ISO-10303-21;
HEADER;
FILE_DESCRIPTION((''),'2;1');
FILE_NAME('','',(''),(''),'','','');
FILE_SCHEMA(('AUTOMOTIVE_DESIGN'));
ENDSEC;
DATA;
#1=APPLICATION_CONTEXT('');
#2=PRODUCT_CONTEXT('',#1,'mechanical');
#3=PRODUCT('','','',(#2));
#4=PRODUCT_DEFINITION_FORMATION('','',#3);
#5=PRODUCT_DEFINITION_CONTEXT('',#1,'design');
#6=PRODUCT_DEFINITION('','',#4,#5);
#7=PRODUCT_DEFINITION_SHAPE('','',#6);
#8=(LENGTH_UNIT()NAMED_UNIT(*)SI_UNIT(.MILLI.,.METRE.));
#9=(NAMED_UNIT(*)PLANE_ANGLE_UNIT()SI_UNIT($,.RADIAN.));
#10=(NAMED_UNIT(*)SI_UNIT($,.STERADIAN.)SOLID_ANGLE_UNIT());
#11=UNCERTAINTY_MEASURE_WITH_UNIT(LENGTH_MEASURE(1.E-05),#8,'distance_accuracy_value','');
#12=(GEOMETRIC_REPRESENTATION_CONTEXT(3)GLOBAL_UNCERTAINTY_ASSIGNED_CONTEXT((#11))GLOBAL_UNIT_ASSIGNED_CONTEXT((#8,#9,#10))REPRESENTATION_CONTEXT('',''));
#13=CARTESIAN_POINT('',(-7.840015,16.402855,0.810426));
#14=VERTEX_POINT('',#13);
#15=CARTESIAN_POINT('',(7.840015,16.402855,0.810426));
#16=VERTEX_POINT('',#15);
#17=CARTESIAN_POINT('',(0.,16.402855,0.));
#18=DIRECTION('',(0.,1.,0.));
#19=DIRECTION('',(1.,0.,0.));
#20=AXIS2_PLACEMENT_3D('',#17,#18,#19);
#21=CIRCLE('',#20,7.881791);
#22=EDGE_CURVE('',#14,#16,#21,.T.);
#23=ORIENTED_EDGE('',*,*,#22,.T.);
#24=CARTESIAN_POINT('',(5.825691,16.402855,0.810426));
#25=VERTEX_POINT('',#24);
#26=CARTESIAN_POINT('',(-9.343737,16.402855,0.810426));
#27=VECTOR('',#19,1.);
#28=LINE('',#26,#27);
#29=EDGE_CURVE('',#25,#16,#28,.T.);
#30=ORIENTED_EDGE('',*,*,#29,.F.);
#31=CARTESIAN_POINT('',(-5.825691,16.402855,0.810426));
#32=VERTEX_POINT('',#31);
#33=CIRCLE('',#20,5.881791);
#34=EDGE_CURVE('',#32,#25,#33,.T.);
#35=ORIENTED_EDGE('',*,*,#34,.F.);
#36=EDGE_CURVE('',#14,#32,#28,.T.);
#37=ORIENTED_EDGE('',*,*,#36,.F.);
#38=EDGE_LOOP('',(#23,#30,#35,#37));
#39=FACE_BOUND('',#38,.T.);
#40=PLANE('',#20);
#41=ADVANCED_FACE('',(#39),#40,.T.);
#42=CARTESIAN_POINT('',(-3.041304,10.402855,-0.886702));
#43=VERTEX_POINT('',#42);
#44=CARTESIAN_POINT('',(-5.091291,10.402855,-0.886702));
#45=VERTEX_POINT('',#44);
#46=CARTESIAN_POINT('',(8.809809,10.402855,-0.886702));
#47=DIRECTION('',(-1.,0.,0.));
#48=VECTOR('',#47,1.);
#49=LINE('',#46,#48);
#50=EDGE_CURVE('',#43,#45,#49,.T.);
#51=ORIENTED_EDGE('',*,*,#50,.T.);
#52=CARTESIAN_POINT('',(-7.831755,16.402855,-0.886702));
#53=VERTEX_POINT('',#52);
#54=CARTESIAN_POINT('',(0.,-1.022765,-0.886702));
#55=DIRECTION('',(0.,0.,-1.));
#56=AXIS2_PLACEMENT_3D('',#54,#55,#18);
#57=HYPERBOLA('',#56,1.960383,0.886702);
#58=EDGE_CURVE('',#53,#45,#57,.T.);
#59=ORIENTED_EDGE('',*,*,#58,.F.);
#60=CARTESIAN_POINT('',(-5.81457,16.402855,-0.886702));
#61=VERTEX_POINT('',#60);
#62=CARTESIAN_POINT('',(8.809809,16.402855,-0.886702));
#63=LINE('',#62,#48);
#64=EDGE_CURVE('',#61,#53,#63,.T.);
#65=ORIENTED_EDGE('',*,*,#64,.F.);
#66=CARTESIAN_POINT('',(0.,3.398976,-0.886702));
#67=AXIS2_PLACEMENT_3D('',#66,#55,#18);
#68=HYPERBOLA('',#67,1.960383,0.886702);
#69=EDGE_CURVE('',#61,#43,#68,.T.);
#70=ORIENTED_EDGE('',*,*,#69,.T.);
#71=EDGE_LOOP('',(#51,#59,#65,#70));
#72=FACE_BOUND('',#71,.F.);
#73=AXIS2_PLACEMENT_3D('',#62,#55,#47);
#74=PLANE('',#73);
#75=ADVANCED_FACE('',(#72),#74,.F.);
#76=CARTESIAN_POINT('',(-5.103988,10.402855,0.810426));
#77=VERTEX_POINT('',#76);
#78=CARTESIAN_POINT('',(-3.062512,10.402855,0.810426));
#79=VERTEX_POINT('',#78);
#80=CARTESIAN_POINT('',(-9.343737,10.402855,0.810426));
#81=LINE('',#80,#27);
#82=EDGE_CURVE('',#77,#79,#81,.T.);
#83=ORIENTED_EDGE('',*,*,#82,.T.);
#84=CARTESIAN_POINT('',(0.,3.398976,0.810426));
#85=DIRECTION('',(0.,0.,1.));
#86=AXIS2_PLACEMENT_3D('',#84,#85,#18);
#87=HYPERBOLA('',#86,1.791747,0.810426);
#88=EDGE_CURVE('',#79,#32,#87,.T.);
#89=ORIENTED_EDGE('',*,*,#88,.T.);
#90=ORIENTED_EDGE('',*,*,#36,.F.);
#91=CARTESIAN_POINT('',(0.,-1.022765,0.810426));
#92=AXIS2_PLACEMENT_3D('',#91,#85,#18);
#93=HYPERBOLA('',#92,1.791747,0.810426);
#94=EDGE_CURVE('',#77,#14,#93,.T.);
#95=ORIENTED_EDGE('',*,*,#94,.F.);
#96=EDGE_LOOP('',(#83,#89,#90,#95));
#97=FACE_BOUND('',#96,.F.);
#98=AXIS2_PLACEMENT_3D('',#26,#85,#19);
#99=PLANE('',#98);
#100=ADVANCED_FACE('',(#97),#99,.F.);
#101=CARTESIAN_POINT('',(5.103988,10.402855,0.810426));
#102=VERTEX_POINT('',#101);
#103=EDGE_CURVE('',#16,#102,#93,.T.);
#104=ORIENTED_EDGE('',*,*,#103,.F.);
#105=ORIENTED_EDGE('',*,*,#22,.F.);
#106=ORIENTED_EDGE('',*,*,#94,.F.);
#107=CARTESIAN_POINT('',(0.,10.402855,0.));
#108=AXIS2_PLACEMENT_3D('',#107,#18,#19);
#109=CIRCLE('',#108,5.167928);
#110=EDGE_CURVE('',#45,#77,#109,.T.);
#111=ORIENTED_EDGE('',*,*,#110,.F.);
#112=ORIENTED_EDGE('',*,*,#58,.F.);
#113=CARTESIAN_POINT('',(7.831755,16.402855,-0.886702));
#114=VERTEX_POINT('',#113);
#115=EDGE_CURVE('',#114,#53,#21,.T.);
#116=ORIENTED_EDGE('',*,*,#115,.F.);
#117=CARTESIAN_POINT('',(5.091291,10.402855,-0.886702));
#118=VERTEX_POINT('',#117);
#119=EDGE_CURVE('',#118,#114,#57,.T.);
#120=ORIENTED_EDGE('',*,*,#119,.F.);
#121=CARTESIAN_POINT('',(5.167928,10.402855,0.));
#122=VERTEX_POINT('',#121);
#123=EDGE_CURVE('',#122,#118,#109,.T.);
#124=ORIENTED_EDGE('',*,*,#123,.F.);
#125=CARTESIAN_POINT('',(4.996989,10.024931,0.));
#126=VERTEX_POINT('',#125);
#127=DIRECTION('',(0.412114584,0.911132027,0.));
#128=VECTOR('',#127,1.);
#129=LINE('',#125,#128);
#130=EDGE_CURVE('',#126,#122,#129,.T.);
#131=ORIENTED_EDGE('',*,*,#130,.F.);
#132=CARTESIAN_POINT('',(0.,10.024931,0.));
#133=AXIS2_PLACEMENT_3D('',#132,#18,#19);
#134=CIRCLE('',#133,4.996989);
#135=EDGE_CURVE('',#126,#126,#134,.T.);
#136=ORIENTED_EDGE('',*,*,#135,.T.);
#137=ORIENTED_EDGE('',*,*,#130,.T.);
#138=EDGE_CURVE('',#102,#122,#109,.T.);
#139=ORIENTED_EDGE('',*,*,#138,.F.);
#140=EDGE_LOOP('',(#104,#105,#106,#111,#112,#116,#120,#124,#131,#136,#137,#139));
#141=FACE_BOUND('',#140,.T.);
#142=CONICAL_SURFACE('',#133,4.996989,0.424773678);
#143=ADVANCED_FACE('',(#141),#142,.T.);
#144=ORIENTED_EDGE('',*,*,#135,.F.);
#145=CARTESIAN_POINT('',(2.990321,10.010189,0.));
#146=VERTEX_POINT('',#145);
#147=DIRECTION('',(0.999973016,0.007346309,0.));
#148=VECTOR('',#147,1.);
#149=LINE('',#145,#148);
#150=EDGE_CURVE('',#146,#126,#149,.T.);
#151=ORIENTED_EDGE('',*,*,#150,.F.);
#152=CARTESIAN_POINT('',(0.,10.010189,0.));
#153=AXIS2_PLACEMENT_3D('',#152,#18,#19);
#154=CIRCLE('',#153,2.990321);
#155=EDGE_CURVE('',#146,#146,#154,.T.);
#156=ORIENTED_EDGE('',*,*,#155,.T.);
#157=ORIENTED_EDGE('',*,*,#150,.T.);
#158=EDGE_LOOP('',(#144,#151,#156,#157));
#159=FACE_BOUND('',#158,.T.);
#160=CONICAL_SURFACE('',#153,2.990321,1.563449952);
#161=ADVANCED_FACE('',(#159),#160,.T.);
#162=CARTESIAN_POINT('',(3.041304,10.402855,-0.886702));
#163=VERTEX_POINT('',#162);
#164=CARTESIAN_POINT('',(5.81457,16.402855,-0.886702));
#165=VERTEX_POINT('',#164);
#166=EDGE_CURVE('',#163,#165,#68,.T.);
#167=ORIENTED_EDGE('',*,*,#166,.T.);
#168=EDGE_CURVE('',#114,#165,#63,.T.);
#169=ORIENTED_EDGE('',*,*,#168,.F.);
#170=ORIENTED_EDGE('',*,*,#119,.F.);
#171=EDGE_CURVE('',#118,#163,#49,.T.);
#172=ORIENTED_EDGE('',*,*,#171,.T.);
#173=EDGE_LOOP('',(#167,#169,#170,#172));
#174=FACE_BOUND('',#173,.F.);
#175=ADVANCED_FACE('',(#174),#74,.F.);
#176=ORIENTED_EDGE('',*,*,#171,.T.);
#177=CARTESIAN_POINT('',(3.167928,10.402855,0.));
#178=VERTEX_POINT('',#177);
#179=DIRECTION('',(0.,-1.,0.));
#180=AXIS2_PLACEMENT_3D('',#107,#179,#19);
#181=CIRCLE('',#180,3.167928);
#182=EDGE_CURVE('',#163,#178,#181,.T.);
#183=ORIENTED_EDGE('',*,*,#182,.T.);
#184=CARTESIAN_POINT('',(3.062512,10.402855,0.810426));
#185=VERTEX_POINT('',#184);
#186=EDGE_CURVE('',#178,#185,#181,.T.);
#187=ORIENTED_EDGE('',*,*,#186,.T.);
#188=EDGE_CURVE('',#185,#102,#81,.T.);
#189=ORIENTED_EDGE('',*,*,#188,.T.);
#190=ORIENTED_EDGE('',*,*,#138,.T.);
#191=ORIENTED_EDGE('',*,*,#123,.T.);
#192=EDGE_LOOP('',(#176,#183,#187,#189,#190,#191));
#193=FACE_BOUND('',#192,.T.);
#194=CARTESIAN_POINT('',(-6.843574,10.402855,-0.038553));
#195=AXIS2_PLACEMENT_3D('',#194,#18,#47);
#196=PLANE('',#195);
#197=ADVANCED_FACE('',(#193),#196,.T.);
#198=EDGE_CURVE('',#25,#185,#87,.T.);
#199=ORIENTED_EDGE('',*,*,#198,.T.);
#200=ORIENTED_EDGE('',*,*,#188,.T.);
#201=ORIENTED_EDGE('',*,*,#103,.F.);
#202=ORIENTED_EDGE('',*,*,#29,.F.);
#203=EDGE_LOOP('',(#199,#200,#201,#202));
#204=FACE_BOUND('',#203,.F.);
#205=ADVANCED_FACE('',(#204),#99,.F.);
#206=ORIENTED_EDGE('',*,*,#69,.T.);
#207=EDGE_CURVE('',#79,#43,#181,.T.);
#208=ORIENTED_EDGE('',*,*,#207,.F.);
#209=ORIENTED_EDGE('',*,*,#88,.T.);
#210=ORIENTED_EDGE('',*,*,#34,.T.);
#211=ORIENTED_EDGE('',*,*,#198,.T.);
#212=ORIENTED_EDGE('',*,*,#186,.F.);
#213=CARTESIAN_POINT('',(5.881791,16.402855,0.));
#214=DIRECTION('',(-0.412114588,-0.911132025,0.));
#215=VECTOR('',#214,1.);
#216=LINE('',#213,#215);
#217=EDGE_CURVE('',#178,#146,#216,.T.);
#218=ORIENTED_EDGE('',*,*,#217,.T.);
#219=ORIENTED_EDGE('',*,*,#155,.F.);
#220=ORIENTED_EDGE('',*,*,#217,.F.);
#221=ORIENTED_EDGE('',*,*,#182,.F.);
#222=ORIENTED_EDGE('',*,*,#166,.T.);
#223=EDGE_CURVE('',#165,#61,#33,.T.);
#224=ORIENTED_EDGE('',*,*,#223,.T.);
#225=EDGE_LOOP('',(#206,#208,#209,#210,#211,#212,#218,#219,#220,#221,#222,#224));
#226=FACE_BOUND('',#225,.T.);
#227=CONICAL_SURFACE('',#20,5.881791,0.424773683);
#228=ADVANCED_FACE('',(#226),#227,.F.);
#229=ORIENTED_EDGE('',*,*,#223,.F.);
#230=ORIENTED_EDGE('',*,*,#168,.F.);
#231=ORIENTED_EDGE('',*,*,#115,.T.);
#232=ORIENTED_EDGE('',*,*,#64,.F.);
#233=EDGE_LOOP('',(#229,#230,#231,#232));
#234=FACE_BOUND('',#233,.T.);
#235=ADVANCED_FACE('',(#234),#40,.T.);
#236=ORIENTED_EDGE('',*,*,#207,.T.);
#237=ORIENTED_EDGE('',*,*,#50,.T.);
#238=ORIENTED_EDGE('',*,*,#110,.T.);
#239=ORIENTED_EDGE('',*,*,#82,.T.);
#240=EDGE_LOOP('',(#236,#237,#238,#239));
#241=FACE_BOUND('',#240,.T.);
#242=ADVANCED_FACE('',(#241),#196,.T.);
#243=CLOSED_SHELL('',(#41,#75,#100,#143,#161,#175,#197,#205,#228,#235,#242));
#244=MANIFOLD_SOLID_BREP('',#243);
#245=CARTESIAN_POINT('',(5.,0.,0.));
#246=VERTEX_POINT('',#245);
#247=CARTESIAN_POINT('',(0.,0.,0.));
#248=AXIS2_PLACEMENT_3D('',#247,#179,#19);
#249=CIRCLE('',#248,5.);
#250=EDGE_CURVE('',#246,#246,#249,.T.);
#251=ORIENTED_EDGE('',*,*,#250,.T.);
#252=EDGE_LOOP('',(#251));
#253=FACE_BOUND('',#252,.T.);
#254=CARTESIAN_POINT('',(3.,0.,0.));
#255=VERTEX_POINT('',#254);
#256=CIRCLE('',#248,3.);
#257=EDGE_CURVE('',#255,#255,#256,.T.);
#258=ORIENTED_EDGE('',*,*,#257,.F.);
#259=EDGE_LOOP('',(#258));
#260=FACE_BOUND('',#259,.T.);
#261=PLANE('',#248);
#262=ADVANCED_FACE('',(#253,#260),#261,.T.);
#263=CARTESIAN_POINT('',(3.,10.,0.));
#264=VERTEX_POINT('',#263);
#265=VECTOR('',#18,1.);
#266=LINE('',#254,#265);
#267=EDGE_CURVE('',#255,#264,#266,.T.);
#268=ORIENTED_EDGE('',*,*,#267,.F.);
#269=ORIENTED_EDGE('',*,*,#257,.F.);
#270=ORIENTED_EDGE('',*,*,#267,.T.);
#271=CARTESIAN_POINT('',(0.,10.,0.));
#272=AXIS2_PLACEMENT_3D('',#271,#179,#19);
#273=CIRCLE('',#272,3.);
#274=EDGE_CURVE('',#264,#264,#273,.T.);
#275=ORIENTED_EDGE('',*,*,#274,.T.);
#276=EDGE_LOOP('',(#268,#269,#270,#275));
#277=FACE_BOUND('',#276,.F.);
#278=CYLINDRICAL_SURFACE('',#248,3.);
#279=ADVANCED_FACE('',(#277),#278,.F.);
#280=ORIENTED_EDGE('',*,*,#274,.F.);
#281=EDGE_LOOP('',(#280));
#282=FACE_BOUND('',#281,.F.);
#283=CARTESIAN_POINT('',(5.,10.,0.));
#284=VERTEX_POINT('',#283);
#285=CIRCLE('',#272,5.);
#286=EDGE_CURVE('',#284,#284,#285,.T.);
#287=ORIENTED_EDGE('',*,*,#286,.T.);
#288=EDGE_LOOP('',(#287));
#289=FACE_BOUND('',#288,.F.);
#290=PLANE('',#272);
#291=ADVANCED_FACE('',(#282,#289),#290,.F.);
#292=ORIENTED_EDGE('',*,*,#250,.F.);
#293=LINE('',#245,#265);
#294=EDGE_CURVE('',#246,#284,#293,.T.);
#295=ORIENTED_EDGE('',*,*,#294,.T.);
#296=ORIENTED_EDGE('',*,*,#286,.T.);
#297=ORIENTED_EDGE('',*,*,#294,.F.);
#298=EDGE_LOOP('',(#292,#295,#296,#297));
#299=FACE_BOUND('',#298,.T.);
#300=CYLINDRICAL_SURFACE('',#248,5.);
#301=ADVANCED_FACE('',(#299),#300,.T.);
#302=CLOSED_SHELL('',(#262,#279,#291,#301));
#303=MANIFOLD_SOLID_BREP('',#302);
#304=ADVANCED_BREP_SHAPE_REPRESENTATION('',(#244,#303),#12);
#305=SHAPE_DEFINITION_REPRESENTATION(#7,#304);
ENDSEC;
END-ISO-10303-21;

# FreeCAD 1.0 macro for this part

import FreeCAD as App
import Part
import Sketcher

V = App.Vector
Q = App.Units.Quantity

doc = App.newDocument("Part")
params = doc.addObject("Spreadsheet::Sheet", "Params")
for row, (alias, value) in enumerate([
    ("sketch1_diameter", "10 mm"),
    ("sketch1_diameter2", "6 mm"),
    ("pad1_length", "10 mm"),
    ("sketch2_width", "2 mm"),
    ("sketch2_length", "7 mm"),
    ("revolution_angle", "360 deg"),
    ("pocket1_length", "6 mm"),
], start=1):
    params.set(f"A{row}", alias)
    params.set(f"B{row}", "=" + value)
    params.setAlias(f"B{row}", alias)

body = doc.addObject("PartDesign::Body", "Body")

# Sketch on XZ plane
sketch1 = body.newObject("Sketcher::SketchObject", "Sketch")
sketch1.AttachmentSupport = (doc.getObject("XZ_Plane"), [""])
sketch1.MapMode = "FlatFace"
sketch1.addGeometry([
    Part.Circle(V(0, 0, 0), V(0, 0, 1), 5),
    Part.Circle(V(0, 0, 0), V(0, 0, 1), 3),
], False)
sketch1.addConstraint([
    Sketcher.Constraint("Coincident", 0, 3, -1, 1),
    Sketcher.Constraint("Coincident", 1, 3, -1, 1),
    Sketcher.Constraint("Diameter", 0, Q("10 mm")),
    Sketcher.Constraint("Diameter", 1, Q("6 mm")),
])
sketch1.setExpression("Constraints[2]", "Params.sketch1_diameter")
sketch1.setExpression("Constraints[3]", "Params.sketch1_diameter2")
pad1 = body.newObject("PartDesign::Pad", "Pad")
pad1.Profile = sketch1
pad1.setExpression("Length", "Params.pad1_length")
pad1.Reversed = True
body2 = doc.addObject("PartDesign::Body", "Body001")

# Sketch on XY plane
sketch2 = body2.newObject("Sketcher::SketchObject", "Sketch001")
sketch2.AttachmentSupport = (doc.getObject("XY_Plane001"), [""])
sketch2.MapMode = "FlatFace"
sketch2.addGeometry([
    Part.LineSegment(V(2.990321, 10.010189, 0), V(4.996989, 10.024931, 0)),
    Part.LineSegment(V(4.996989, 10.024931, 0), V(7.881791, 16.402855, 0)),
    Part.LineSegment(V(7.881791, 16.402855, 0), V(5.881791, 16.402855, 0)),
    Part.LineSegment(V(5.881791, 16.402855, 0), V(2.990321, 10.010189, 0)),
], False)
sketch2.addConstraint([
    Sketcher.Constraint("Coincident", 0, 2, 1, 1),
    Sketcher.Constraint("Coincident", 1, 2, 2, 1),
    Sketcher.Constraint("Coincident", 2, 2, 3, 1),
    Sketcher.Constraint("Coincident", 3, 2, 0, 1),
    Sketcher.Constraint("Horizontal", 2),
    Sketcher.Constraint("Parallel", 1, 3),
    Sketcher.Constraint("DistanceX", 2, 2, 2, 1, Q("2 mm")),
    Sketcher.Constraint("Distance", 1, Q("7 mm")),
    Sketcher.Constraint("DistanceX", 0, 2, 1, 2, Q("2.884802 mm")),
    Sketcher.Constraint("Distance", 3, Q("7.01618 mm")),
    Sketcher.Constraint("DistanceX", -1, 1, 0, 2, Q("4.996989 mm")),
    Sketcher.Constraint("DistanceY", -1, 1, 0, 2, Q("10.024931 mm")),
])
sketch2.setExpression("Constraints[6]", "Params.sketch2_width")
sketch2.setExpression("Constraints[7]", "Params.sketch2_length")
revolution = body2.newObject("PartDesign::Revolution", "Revolution")
revolution.Profile = sketch2
revolution.ReferenceAxis = (sketch2, ["V_Axis"])
revolution.setExpression("Angle", "Params.revolution_angle")

# Sketch on XZ plane
sketch3 = body2.newObject("Sketcher::SketchObject", "Sketch002")
sketch3.AttachmentSupport = (doc.getObject("XZ_Plane001"), [""])
sketch3.MapMode = "FlatFace"
sketch3.AttachmentOffset = App.Placement(V(0, 0, -16.402855), App.Rotation())
sketch3.addGeometry([
    Part.LineSegment(V(-9.343737, -0.886702, 0), V(-9.343737, 0.810426, 0)),
    Part.LineSegment(V(-9.343737, 0.810426, 0), V(8.809809, 0.810426, 0)),
    Part.LineSegment(V(8.809809, 0.810426, 0), V(8.809809, -0.886702, 0)),
    Part.LineSegment(V(8.809809, -0.886702, 0), V(-9.343737, -0.886702, 0)),
], False)
sketch3.addConstraint([
    Sketcher.Constraint("Coincident", 0, 2, 1, 1),
    Sketcher.Constraint("Coincident", 1, 2, 2, 1),
    Sketcher.Constraint("Coincident", 2, 2, 3, 1),
    Sketcher.Constraint("Coincident", 3, 2, 0, 1),
    Sketcher.Constraint("Vertical", 0),
    Sketcher.Constraint("Horizontal", 1),
    Sketcher.Constraint("Vertical", 2),
    Sketcher.Constraint("Horizontal", 3),
    Sketcher.Constraint("DistanceY", 2, 2, -1, 1, Q("0.886702 mm")),
    Sketcher.Constraint("DistanceX", 1, 1, 1, 2, Q("18.153546 mm")),
    Sketcher.Constraint("DistanceY", 0, 1, 0, 2, Q("1.697128 mm")),
    Sketcher.Constraint("DistanceX", -1, 1, 1, 2, Q("8.809809 mm")),
])
pocket1 = body2.newObject("PartDesign::Pocket", "Pocket")
pocket1.Profile = sketch3
pocket1.setExpression("Length", "Params.pocket1_length")
pocket1.Reversed = True

doc.recompute()
